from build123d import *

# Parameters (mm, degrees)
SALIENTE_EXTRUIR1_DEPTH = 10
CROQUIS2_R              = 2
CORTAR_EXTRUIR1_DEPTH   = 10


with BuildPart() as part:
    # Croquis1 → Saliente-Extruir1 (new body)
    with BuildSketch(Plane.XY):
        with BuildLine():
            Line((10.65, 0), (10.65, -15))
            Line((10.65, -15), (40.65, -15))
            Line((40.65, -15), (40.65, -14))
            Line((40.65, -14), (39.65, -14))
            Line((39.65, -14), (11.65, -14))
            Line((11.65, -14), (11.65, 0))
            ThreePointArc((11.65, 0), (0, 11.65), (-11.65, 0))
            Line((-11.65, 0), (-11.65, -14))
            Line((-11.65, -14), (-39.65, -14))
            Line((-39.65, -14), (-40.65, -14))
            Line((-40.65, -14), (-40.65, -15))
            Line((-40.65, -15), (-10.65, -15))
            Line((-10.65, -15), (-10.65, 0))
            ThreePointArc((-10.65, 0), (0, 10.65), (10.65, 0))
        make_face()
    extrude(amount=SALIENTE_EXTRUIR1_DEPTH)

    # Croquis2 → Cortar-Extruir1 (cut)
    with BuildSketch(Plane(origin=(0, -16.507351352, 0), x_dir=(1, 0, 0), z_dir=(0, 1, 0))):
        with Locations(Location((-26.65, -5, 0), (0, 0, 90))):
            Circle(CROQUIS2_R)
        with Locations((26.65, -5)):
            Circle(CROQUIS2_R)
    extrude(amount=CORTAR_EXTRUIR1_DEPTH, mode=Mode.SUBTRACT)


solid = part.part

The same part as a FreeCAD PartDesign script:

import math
import FreeCAD as App
import Part
import Sketcher

doc = App.newDocument("Part")
params = doc.addObject("Spreadsheet::Sheet", "Params")
for row, (alias, value) in enumerate([
    ("sketch1_width", "30 mm"),
    ("sketch1_width2", "29 mm"),
    ("sketch1_height", "15 mm"),
    ("sketch1_height2", "1 mm"),
    ("sketch1_radius", "11.65 mm"),
    ("pad1_length", "10 mm"),
    ("sketch2_diameter", "4 mm"),
    ("pocket1_length", "10 mm"),
], start=1):
    params.set(f"A{row}", alias)
    params.set(f"B{row}", "=" + value)
    params.setAlias(f"B{row}", alias)

body = doc.addObject("PartDesign::Body", "Body")

# Sketch on XY plane
sketch1 = body.newObject("Sketcher::SketchObject", "Sketch")
sketch1.AttachmentSupport = (doc.getObject("XY_Plane"), [""])
sketch1.MapMode = "FlatFace"
sketch1.addGeometry([
    Part.LineSegment(App.Vector(10.7, 0, 0), App.Vector(10.7, -15, 0)),  # 0
    Part.LineSegment(App.Vector(10.7, -15, 0), App.Vector(40.6, -15, 0)),  # 1
    Part.LineSegment(App.Vector(40.6, -15, 0), App.Vector(40.6, -14, 0)),  # 2
    Part.LineSegment(App.Vector(40.6, -14, 0), App.Vector(11.7, -14, 0)),  # 3
    Part.LineSegment(App.Vector(11.7, -14, 0), App.Vector(11.7, 0, 0)),  # 4
    Part.ArcOfCircle(Part.Circle(App.Vector(0, 0, 0), App.Vector(0, 0, 1), 11.7), math.radians(0), math.radians(180)),  # 5
    Part.LineSegment(App.Vector(-11.7, 0, 0), App.Vector(-11.7, -14, 0)),  # 6
    Part.LineSegment(App.Vector(-11.7, -14, 0), App.Vector(-40.6, -14, 0)),  # 7
    Part.LineSegment(App.Vector(-40.6, -14, 0), App.Vector(-40.6, -15, 0)),  # 8
    Part.LineSegment(App.Vector(-40.6, -15, 0), App.Vector(-10.7, -15, 0)),  # 9
    Part.LineSegment(App.Vector(-10.7, -15, 0), App.Vector(-10.7, 0, 0)),  # 10
    Part.ArcOfCircle(Part.Circle(App.Vector(0, 0, 0), App.Vector(0, 0, 1), 10.7), math.radians(0), math.radians(180)),  # 11
], False)
sketch1.addConstraint([
    Sketcher.Constraint("Coincident", 0, 2, 1, 1),
    Sketcher.Constraint("Coincident", 1, 2, 2, 1),
    Sketcher.Constraint("Coincident", 2, 2, 3, 1),
    Sketcher.Constraint("Coincident", 3, 2, 4, 1),
    Sketcher.Constraint("Tangent", 4, 2, 5, 1),
    Sketcher.Constraint("Tangent", 5, 2, 6, 1),
    Sketcher.Constraint("Coincident", 6, 2, 7, 1),
    Sketcher.Constraint("Coincident", 7, 2, 8, 1),
    Sketcher.Constraint("Coincident", 8, 2, 9, 1),
    Sketcher.Constraint("Coincident", 9, 2, 10, 1),
    Sketcher.Constraint("Tangent", 10, 2, 11, 2),
    Sketcher.Constraint("Tangent", 11, 1, 0, 1),
    Sketcher.Constraint("Vertical", 0),
    Sketcher.Constraint("Horizontal", 1),
    Sketcher.Constraint("Vertical", 2),
    Sketcher.Constraint("Horizontal", 3),
    Sketcher.Constraint("Vertical", 4),
    Sketcher.Constraint("Vertical", 6),
    Sketcher.Constraint("Horizontal", 7),
    Sketcher.Constraint("Vertical", 8),
    Sketcher.Constraint("Horizontal", 9),
    Sketcher.Constraint("Vertical", 10),
    Sketcher.Constraint("Coincident", 5, 3, -1, 1),
    Sketcher.Constraint("Coincident", 11, 3, -1, 1),
    Sketcher.Constraint("Symmetric", 2, 2, 7, 2, -2),
    Sketcher.Constraint("Horizontal", 1, 2, 8, 2),
    Sketcher.Constraint("DistanceX", 1, 1, 1, 2, 30.0),
    Sketcher.Constraint("DistanceX", 3, 2, 3, 1, 29.0),
    Sketcher.Constraint("DistanceY", 0, 2, 0, 1, 15.0),
    Sketcher.Constraint("DistanceY", 2, 1, 2, 2, 1.0),
    Sketcher.Constraint("Radius", 5, 11.65),
])
sketch1.setExpression("Constraints[26]", "Params.sketch1_width")
sketch1.setExpression("Constraints[27]", "Params.sketch1_width2")
sketch1.setExpression("Constraints[28]", "Params.sketch1_height")
sketch1.setExpression("Constraints[29]", "Params.sketch1_height2")
sketch1.setExpression("Constraints[30]", "Params.sketch1_radius")
pad1 = body.newObject("PartDesign::Pad", "Pad")
pad1.Profile = sketch1
pad1.setExpression("Length", "Params.pad1_length")

# Sketch on XZ plane
sketch2 = body.newObject("Sketcher::SketchObject", "Sketch001")
sketch2.AttachmentSupport = (doc.getObject("XZ_Plane"), [""])
sketch2.MapMode = "FlatFace"
sketch2.AttachmentOffset = App.Placement(App.Vector(0, 0, 16.507351), App.Rotation())
sketch2.addGeometry([
    Part.Circle(App.Vector(-26.6, 5, 0), App.Vector(0, 0, 1), 2),
    Part.Circle(App.Vector(26.6, 5, 0), App.Vector(0, 0, 1), 2),
], False)
sketch2.addConstraint([
    Sketcher.Constraint("Equal", 0, 1),
    Sketcher.Constraint("Symmetric", 0, 3, 1, 3, -2),
    Sketcher.Constraint("Diameter", 0, 4.0),
    Sketcher.Constraint("DistanceY", -1, 1, 0, 3, 5.0),
    Sketcher.Constraint("DistanceX", 0, 3, 1, 3, 53.3),
])
sketch2.setExpression("Constraints[2]", "Params.sketch2_diameter")
pocket1 = body.newObject("PartDesign::Pocket", "Pocket")
pocket1.Profile = sketch2
pocket1.setExpression("Length", "Params.pocket1_length")

doc.recompute()
